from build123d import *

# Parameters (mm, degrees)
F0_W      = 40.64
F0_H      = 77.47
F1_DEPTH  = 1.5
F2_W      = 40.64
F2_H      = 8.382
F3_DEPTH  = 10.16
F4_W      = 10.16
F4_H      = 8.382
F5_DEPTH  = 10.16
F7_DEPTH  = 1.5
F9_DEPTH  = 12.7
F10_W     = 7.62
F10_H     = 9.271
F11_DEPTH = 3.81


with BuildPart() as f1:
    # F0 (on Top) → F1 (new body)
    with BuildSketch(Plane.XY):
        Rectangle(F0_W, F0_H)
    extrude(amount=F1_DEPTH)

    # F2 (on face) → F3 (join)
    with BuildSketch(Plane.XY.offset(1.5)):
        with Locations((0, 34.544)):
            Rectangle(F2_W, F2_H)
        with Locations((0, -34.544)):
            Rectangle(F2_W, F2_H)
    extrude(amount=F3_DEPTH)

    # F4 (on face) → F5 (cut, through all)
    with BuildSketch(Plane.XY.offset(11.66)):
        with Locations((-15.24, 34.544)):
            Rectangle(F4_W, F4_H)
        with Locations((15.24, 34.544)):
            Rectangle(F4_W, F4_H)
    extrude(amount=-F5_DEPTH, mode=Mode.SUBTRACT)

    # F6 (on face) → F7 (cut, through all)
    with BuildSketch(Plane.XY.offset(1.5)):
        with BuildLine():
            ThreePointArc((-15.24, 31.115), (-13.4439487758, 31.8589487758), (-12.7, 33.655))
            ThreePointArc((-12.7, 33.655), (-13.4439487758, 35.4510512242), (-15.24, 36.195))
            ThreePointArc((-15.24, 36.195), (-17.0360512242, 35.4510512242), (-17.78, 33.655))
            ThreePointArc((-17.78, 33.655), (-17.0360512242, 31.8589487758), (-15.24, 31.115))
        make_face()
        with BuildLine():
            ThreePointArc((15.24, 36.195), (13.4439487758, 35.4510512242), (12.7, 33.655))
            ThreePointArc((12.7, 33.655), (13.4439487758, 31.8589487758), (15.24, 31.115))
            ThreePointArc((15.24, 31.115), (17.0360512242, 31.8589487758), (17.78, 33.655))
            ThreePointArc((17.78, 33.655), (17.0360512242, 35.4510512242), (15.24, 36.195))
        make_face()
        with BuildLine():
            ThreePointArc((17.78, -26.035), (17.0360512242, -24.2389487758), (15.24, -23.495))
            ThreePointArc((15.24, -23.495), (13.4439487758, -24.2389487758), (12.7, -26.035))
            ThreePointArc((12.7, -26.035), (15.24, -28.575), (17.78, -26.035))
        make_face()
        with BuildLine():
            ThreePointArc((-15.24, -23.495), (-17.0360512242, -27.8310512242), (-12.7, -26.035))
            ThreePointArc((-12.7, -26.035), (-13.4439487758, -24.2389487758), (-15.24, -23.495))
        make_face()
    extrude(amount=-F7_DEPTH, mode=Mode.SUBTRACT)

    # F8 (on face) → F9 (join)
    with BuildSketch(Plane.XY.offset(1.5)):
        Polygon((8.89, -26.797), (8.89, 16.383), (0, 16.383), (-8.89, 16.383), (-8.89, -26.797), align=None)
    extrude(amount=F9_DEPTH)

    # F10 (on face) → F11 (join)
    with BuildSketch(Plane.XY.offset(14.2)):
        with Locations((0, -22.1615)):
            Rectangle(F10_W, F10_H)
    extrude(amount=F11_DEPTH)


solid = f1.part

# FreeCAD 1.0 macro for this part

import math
import FreeCAD as App
import Part
import Sketcher

V = App.Vector
Q = App.Units.Quantity


def add_polygon(sketch, points):
    """Adds a closed chain of lines whose ends are joined by coincident constraints."""
    first, n = sketch.GeometryCount, len(points)
    for a, b in zip(points, points[1:] + points[:1]):
        sketch.addGeometry(Part.LineSegment(App.Vector(*a, 0), App.Vector(*b, 0)), False)
    for i in range(n):
        sketch.addConstraint(Sketcher.Constraint("Coincident", first + i, 2, first + (i + 1) % n, 1))

doc = App.newDocument("Part")
body = doc.addObject("PartDesign::Body", "Body")

# Sketch on XY plane
sketch1 = body.newObject("Sketcher::SketchObject", "Sketch")
sketch1.AttachmentSupport = (doc.getObject("XY_Plane"), [""])
sketch1.MapMode = "FlatFace"
add_polygon(sketch1, [(-20, 39), (-20, -39), (20, -39), (20, 39)])  # lines 0-3
sketch1.addConstraint([
    Sketcher.Constraint("Vertical", 0),
    Sketcher.Constraint("Horizontal", 1),
    Sketcher.Constraint("Vertical", 2),
    Sketcher.Constraint("Horizontal", 3),
    Sketcher.Constraint("Symmetric", 0, 2, 2, 2, -1, 1),
    Sketcher.Constraint("DistanceX", 1, 1, 1, 2, Q("1.6 in")),
    Sketcher.Constraint("DistanceY", 0, 2, 0, 1, Q("3.05 in")),
])
pad1 = body.newObject("PartDesign::Pad", "Pad")
pad1.Profile = sketch1
pad1.Length = 1.5

# Sketch on XY plane
sketch2 = body.newObject("Sketcher::SketchObject", "Sketch001")
sketch2.AttachmentSupport = (doc.getObject("XY_Plane"), [""])
sketch2.MapMode = "FlatFace"
sketch2.AttachmentOffset = App.Placement(V(0, 0, 1.5), App.Rotation())
add_polygon(sketch2, [(-20, 39), (-20, 30), (20, 30), (20, 39)])  # lines 0-3
add_polygon(sketch2, [(-20, -30), (-20, -39), (20, -39), (20, -30)])  # lines 4-7
sketch2.addConstraint([
    Sketcher.Constraint("Vertical", 0),
    Sketcher.Constraint("Horizontal", 1),
    Sketcher.Constraint("Vertical", 2),
    Sketcher.Constraint("Horizontal", 3),
    Sketcher.Constraint("Vertical", 4),
    Sketcher.Constraint("Horizontal", 5),
    Sketcher.Constraint("Vertical", 6),
    Sketcher.Constraint("Horizontal", 7),
    Sketcher.Constraint("Symmetric", 2, 2, 4, 2, -1, 1),
    Sketcher.Constraint("Symmetric", 0, 2, 6, 2, -1, 1),
    Sketcher.Constraint("Vertical", 3, 2, 4, 2),
    Sketcher.Constraint("DistanceX", 1, 1, 1, 2, Q("1.6 in")),
    Sketcher.Constraint("DistanceY", 0, 2, 0, 1, Q("0.33 in")),
    Sketcher.Constraint("DistanceY", 4, 2, 0, 2, Q("2.72 in")),
])
pad2 = body.newObject("PartDesign::Pad", "Pad001")
pad2.Profile = sketch2
pad2.Length = Q("0.4 in")

# Sketch on XY plane
sketch3 = body.newObject("Sketcher::SketchObject", "Sketch002")
sketch3.AttachmentSupport = (doc.getObject("XY_Plane"), [""])
sketch3.MapMode = "FlatFace"
sketch3.AttachmentOffset = App.Placement(V(0, 0, 11.66), App.Rotation())
add_polygon(sketch3, [(-20, 39), (-20, 30), (-10, 30), (-10, 39)])  # lines 0-3
add_polygon(sketch3, [(10, 39), (10, 30), (20, 30), (20, 39)])  # lines 4-7
sketch3.addConstraint([
    Sketcher.Constraint("Vertical", 0),
    Sketcher.Constraint("Horizontal", 1),
    Sketcher.Constraint("Vertical", 2),
    Sketcher.Constraint("Horizontal", 3),
    Sketcher.Constraint("Vertical", 4),
    Sketcher.Constraint("Horizontal", 5),
    Sketcher.Constraint("Vertical", 6),
    Sketcher.Constraint("Horizontal", 7),
    Sketcher.Constraint("Symmetric", 1, 2, 4, 2, -2),
    Sketcher.Constraint("Symmetric", 3, 2, 6, 2, -2),
    Sketcher.Constraint("DistanceX", 1, 1, 1, 2, Q("0.4 in")),
    Sketcher.Constraint("DistanceY", 0, 2, 0, 1, Q("0.33 in")),
    Sketcher.Constraint("DistanceX", 0, 2, -1, 1, Q("0.8 in")),
    Sketcher.Constraint("DistanceY", -1, 1, 0, 2, Q("1.195 in")),
])
pocket1 = body.newObject("PartDesign::Pocket", "Pocket")
pocket1.Profile = sketch3
pocket1.Length = Q("0.4 in")

# Sketch on XY plane
sketch4 = body.newObject("Sketcher::SketchObject", "Sketch003")
sketch4.AttachmentSupport = (doc.getObject("XY_Plane"), [""])
sketch4.MapMode = "FlatFace"
sketch4.AttachmentOffset = App.Placement(V(0, 0, 1.5), App.Rotation())
sketch4.addGeometry([
    Part.ArcOfCircle(Part.Circle(V(-15.2, 33.7, 0), V(0, 0, 1), 2.5), math.radians(-90), math.radians(0)),  # 0
    Part.ArcOfCircle(Part.Circle(V(-15.2, 33.7, 0), V(0, 0, 1), 2.5), math.radians(0), math.radians(90)),  # 1
    Part.ArcOfCircle(Part.Circle(V(-15.2, 33.7, 0), V(0, 0, 1), 2.5), math.radians(90), math.radians(180)),  # 2
    Part.ArcOfCircle(Part.Circle(V(-15.2, 33.7, 0), V(0, 0, 1), 2.5), math.radians(180), math.radians(270)),  # 3
    Part.ArcOfCircle(Part.Circle(V(15.2, 33.7, 0), V(0, 0, 1), 2.5), math.radians(90), math.radians(180)),  # 4
    Part.ArcOfCircle(Part.Circle(V(15.2, 33.7, 0), V(0, 0, 1), 2.5), math.radians(180), math.radians(270)),  # 5
    Part.ArcOfCircle(Part.Circle(V(15.2, 33.7, 0), V(0, 0, 1), 2.5), math.radians(-90), math.radians(0)),  # 6
    Part.ArcOfCircle(Part.Circle(V(15.2, 33.7, 0), V(0, 0, 1), 2.5), math.radians(0), math.radians(90)),  # 7
    Part.ArcOfCircle(Part.Circle(V(15.2, -26, 0), V(0, 0, 1), 2.5), math.radians(0), math.radians(90)),  # 8
    Part.ArcOfCircle(Part.Circle(V(15.2, -26, 0), V(0, 0, 1), 2.5), math.radians(90), math.radians(180)),  # 9
    Part.ArcOfCircle(Part.Circle(V(15.2, -26, 0), V(0, 0, 1), 2.5), math.radians(180), math.radians(360)),  # 10
    Part.ArcOfCircle(Part.Circle(V(-15.2, -26, 0), V(0, 0, 1), 2.5), math.radians(90), math.radians(360)),  # 11
    Part.ArcOfCircle(Part.Circle(V(-15.2, -26, 0), V(0, 0, 1), 2.5), math.radians(0), math.radians(90)),  # 12
], False)
sketch4.addConstraint([
    Sketcher.Constraint("Tangent", 0, 2, 1, 1),
    Sketcher.Constraint("Tangent", 1, 2, 2, 1),
    Sketcher.Constraint("Tangent", 2, 2, 3, 1),
    Sketcher.Constraint("Tangent", 3, 2, 0, 1),
    Sketcher.Constraint("Tangent", 4, 2, 5, 1),
    Sketcher.Constraint("Tangent", 5, 2, 6, 1),
    Sketcher.Constraint("Tangent", 6, 2, 7, 1),
    Sketcher.Constraint("Tangent", 7, 2, 4, 1),
    Sketcher.Constraint("Tangent", 8, 2, 9, 1),
    Sketcher.Constraint("Tangent", 9, 2, 10, 1),
    Sketcher.Constraint("Tangent", 10, 2, 8, 1),
    Sketcher.Constraint("Tangent", 11, 1, 12, 2),
    Sketcher.Constraint("Coincident", 12, 1, 11, 2),
    Sketcher.Constraint("Equal", 0, 1),
    Sketcher.Constraint("Equal", 3, 4),
    Sketcher.Constraint("Equal", 4, 5),
    Sketcher.Constraint("Equal", 7, 8),
    Sketcher.Constraint("Equal", 10, 11),
    Sketcher.Constraint("Symmetric", 0, 3, 4, 3, -2),
    Sketcher.Constraint("Symmetric", 8, 3, 11, 3, -2),
    Sketcher.Constraint("Horizontal", 7, 3, 0, 2),
    Sketcher.Constraint("Horizontal", 0, 2, 2, 2),
    Sketcher.Constraint("Horizontal", 2, 2, 4, 2),
    Sketcher.Constraint("Horizontal", 4, 2, 6, 2),
    Sketcher.Constraint("Horizontal", 12, 3, 9, 2),
    Sketcher.Constraint("Horizontal", 9, 2, 10, 2),
    Sketcher.Constraint("Horizontal", 10, 2, 12, 1),
    Sketcher.Constraint("Vertical", 7, 3, 8, 3),
    Sketcher.Constraint("Vertical", 12, 3, 1, 2),
    Sketcher.Constraint("Vertical", 1, 2, 3, 2),
    Sketcher.Constraint("Vertical", 10, 3, 5, 2),
    Sketcher.Constraint("Vertical", 5, 2, 7, 2),
    Sketcher.Constraint("Vertical", 7, 2, 8, 2),
    Sketcher.Constraint("Vertical", 3, 2, 11, 1),
    Sketcher.Constraint("Radius", 0, Q("0.1 in")),
    Sketcher.Constraint("DistanceX", 0, 2, 4, 2, Q("1 in")),
    Sketcher.Constraint("DistanceY", 8, 3, 4, 3, Q("2.35 in")),
    Sketcher.Constraint("DistanceY", -1, 1, 0, 3, Q("1.325 in")),
])
pocket2 = body.newObject("PartDesign::Pocket", "Pocket001")
pocket2.Profile = sketch4
pocket2.Type = "ThroughAll"

# Sketch on XY plane
sketch5 = body.newObject("Sketcher::SketchObject", "Sketch004")
sketch5.AttachmentSupport = (doc.getObject("XY_Plane"), [""])
sketch5.MapMode = "FlatFace"
sketch5.AttachmentOffset = App.Placement(V(0, 0, 1.5), App.Rotation())
add_polygon(sketch5, [(9, -27), (9, 16), (-9, 16), (-9, -27)])  # lines 0-3
sketch5.addConstraint([
    Sketcher.Constraint("Vertical", 0),
    Sketcher.Constraint("Horizontal", 1),
    Sketcher.Constraint("Vertical", 2),
    Sketcher.Constraint("Horizontal", 3),
    Sketcher.Constraint("DistanceX", 1, 2, 1, 1, Q("0.7 in")),
    Sketcher.Constraint("DistanceY", 0, 1, 0, 2, Q("1.7 in")),
    Sketcher.Constraint("DistanceX", -1, 1, 0, 2, Q("0.35 in")),
    Sketcher.Constraint("DistanceY", -1, 1, 0, 2, Q("0.645 in")),
])
pad3 = body.newObject("PartDesign::Pad", "Pad002")
pad3.Profile = sketch5
pad3.Length = Q("0.5 in")

# Sketch on XY plane
sketch6 = body.newObject("Sketcher::SketchObject", "Sketch005")
sketch6.AttachmentSupport = (doc.getObject("XY_Plane"), [""])
sketch6.MapMode = "FlatFace"
sketch6.AttachmentOffset = App.Placement(V(0, 0, 14.2), App.Rotation())
add_polygon(sketch6, [(-4, -18), (-4, -27), (4, -27), (4, -18)])  # lines 0-3
sketch6.addConstraint([
    Sketcher.Constraint("Vertical", 0),
    Sketcher.Constraint("Horizontal", 1),
    Sketcher.Constraint("Vertical", 2),
    Sketcher.Constraint("Horizontal", 3),
    Sketcher.Constraint("DistanceX", 1, 1, 1, 2, Q("0.3 in")),
    Sketcher.Constraint("DistanceY", 0, 2, 0, 1, Q("0.365 in")),
    Sketcher.Constraint("DistanceX", 0, 2, -1, 1, Q("0.15 in")),
    Sketcher.Constraint("DistanceY", 2, 2, -1, 1, Q("0.69 in")),
])
pad4 = body.newObject("PartDesign::Pad", "Pad003")
pad4.Profile = sketch6
pad4.Length = Q("0.15 in")

doc.recompute()
